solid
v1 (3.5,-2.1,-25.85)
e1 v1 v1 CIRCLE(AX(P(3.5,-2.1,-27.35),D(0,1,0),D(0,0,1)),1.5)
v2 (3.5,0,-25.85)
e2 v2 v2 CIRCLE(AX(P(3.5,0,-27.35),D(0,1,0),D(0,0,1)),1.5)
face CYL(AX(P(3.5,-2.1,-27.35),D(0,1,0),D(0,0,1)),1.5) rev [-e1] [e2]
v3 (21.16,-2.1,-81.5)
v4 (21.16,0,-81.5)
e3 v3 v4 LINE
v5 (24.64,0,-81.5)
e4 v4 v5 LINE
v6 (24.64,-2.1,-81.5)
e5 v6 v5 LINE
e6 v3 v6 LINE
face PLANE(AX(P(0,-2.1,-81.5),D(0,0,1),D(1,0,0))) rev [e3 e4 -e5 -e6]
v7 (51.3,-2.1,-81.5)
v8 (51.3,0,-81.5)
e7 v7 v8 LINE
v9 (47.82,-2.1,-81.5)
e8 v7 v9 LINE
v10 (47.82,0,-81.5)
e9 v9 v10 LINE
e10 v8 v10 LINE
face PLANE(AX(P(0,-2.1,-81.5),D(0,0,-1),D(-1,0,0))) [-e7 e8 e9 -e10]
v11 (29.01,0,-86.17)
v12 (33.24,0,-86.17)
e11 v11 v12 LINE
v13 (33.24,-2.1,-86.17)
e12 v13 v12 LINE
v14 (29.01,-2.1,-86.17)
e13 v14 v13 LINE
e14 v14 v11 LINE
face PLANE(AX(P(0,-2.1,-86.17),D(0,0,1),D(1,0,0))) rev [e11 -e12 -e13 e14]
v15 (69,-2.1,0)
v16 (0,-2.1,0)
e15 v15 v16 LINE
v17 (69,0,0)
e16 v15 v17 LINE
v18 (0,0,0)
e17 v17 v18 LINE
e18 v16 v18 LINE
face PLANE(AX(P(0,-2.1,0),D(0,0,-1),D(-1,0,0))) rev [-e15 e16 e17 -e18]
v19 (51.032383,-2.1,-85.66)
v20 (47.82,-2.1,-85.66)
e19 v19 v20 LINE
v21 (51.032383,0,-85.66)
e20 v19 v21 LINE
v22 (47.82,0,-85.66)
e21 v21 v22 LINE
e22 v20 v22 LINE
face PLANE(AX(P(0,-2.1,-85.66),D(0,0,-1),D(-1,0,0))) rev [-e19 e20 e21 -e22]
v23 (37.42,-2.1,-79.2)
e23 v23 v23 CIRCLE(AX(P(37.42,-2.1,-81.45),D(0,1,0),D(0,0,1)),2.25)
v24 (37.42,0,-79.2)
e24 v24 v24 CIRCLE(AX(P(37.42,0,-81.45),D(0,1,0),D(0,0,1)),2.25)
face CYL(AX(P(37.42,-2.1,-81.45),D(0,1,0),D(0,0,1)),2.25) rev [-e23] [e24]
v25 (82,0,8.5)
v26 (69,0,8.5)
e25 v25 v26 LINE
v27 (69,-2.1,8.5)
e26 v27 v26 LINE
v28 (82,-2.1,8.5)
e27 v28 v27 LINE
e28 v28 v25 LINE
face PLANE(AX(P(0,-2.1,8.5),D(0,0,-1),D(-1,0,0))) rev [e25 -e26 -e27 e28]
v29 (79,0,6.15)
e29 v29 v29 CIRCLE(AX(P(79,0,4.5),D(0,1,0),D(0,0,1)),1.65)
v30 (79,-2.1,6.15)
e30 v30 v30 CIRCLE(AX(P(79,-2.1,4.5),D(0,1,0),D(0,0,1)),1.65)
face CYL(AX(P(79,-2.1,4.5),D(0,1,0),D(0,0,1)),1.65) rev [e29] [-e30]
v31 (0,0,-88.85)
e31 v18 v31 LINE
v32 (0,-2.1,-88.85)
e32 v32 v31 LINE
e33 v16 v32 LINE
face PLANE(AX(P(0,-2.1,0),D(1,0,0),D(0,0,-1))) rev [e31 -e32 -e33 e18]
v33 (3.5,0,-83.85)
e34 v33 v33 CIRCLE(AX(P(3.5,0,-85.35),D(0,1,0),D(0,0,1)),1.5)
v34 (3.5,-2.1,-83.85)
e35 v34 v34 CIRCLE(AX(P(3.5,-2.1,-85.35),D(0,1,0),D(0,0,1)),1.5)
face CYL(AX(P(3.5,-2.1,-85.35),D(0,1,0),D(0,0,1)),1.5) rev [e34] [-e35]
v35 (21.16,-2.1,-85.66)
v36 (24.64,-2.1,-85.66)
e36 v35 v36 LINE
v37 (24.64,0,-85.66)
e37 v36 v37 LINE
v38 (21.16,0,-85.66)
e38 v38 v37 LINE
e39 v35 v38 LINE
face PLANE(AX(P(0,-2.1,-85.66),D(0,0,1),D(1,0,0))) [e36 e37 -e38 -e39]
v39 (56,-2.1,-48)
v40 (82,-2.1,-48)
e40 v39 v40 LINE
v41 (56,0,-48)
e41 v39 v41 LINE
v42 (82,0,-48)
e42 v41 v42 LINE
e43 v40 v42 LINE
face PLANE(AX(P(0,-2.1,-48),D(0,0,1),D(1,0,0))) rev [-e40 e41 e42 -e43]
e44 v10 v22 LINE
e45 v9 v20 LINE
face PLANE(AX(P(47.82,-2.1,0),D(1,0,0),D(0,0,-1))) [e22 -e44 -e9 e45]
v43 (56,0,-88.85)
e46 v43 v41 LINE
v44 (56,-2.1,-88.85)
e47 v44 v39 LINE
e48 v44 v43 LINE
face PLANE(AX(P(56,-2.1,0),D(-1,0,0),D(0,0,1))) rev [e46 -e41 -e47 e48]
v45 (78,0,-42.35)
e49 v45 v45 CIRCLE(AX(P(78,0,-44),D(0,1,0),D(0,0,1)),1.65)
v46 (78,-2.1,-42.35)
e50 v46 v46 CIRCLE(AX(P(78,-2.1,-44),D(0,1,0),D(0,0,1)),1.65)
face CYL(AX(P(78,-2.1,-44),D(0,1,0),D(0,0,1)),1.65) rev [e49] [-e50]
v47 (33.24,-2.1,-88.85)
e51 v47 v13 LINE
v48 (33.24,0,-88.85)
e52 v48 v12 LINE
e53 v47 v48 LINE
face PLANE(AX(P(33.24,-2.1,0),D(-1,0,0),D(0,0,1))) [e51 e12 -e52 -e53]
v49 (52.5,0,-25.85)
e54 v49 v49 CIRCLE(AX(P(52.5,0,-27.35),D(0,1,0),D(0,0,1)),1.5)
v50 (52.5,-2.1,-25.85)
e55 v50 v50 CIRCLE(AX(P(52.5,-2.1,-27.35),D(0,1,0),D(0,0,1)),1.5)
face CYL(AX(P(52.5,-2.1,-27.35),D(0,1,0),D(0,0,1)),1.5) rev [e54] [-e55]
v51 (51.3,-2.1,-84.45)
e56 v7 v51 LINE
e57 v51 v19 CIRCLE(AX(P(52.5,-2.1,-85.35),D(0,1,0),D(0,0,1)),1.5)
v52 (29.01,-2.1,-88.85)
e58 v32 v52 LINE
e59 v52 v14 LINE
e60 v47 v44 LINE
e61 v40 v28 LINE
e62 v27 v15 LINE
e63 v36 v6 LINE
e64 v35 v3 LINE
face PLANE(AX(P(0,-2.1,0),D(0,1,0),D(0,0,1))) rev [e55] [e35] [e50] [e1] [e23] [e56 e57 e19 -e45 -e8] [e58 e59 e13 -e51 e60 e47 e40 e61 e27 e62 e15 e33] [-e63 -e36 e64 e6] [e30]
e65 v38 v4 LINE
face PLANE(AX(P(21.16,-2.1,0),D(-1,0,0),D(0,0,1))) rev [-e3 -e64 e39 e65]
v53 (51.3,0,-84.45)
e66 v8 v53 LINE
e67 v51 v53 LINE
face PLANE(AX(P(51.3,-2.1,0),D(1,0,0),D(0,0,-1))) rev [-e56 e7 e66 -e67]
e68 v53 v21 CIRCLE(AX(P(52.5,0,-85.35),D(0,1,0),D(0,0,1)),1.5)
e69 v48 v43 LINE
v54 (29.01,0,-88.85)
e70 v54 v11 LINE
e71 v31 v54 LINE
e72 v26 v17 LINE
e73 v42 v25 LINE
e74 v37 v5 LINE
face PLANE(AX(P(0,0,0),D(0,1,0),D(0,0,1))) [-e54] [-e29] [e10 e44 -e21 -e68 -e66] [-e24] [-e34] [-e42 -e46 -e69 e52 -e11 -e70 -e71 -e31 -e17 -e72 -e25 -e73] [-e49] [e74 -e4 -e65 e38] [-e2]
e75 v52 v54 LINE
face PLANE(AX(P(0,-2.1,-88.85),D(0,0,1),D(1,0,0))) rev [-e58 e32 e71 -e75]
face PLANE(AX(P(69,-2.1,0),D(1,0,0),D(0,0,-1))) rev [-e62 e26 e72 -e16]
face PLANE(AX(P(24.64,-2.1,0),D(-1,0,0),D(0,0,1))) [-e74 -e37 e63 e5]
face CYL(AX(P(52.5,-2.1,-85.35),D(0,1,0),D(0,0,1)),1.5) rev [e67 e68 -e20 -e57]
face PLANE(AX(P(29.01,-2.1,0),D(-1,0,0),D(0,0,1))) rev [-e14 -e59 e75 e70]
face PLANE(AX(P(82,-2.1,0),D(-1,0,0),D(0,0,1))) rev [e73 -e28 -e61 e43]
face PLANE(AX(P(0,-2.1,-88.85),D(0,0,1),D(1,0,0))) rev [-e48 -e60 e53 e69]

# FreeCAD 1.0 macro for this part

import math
import FreeCAD as App
import Part
import Sketcher

V = App.Vector
Q = App.Units.Quantity


def add_polygon(sketch, points):
    """Adds a closed chain of lines whose ends are joined by coincident constraints."""
    first, n = sketch.GeometryCount, len(points)
    for a, b in zip(points, points[1:] + points[:1]):
        sketch.addGeometry(Part.LineSegment(App.Vector(*a, 0), App.Vector(*b, 0)), False)
    for i in range(n):
        sketch.addConstraint(Sketcher.Constraint("Coincident", first + i, 2, first + (i + 1) % n, 1))

doc = App.newDocument("Part")
body = doc.addObject("PartDesign::Body", "Body")

# Sketch on XZ plane
sketch1 = body.newObject("Sketcher::SketchObject", "Sketch")
sketch1.AttachmentSupport = (doc.getObject("XZ_Plane"), [""])
sketch1.MapMode = "FlatFace"
add_polygon(sketch1, [(0, -88.8), (0, 0), (69, 0), (69, 8.5), (82, 8.5), (82, -48), (56, -48), (56, -88.8), (33.2, -88.8), (33.2, -86.2), (29, -86.2), (29, -88.8)])  # lines 0-11
sketch1.addGeometry(Part.Circle(V(3.5, -27.4, 0), V(0, 0, 1), 1.5), False)  # 12
sketch1.addGeometry(Part.Circle(V(79, 4.5, 0), V(0, 0, 1), 1.6), False)  # 13
sketch1.addGeometry(Part.Circle(V(52.5, -27.4, 0), V(0, 0, 1), 1.5), False)  # 14
sketch1.addGeometry(Part.Circle(V(3.5, -85.3, 0), V(0, 0, 1), 1.5), False)  # 15
add_polygon(sketch1, [(24.6, -81.5), (21.2, -81.5), (21.2, -85.7), (24.6, -85.7)])  # lines 16-19
sketch1.addGeometry(Part.Circle(V(37.4, -81.5, 0), V(0, 0, 1), 2.2), False)  # 20
sketch1.addGeometry(Part.Circle(V(78, -44, 0), V(0, 0, 1), 1.6), False)  # 21
sketch1.addGeometry(Part.ArcOfCircle(Part.Circle(V(52.5, -85.3, 0), V(0, 0, 1), 1.5), math.radians(0), math.radians(143)), False)  # 22
sketch1.addGeometry(Part.LineSegment(V(51.3, -84.5, 0), V(51.3, -81.5, 0)), False)  # 23
sketch1.addGeometry(Part.LineSegment(V(51.3, -81.5, 0), V(47.8, -81.5, 0)), False)  # 24
sketch1.addGeometry(Part.LineSegment(V(47.8, -81.5, 0), V(47.8, -85.7, 0)), False)  # 25
sketch1.addGeometry(Part.LineSegment(V(47.8, -85.7, 0), V(51, -85.7, 0)), False)  # 26
sketch1.addGeometry(Part.ArcOfCircle(Part.Circle(V(52.5, -85.3, 0), V(0, 0, 1), 1.5), math.radians(-168), math.radians(0)), False)  # 27
sketch1.addConstraint(Sketcher.Constraint("Coincident", 22, 2, 23, 1))
sketch1.addConstraint(Sketcher.Constraint("Coincident", 23, 2, 24, 1))
sketch1.addConstraint(Sketcher.Constraint("Coincident", 24, 2, 25, 1))
sketch1.addConstraint(Sketcher.Constraint("Coincident", 25, 2, 26, 1))
sketch1.addConstraint(Sketcher.Constraint("Coincident", 26, 2, 27, 1))
sketch1.addConstraint(Sketcher.Constraint("Tangent", 27, 2, 22, 1))
sketch1.addConstraint(Sketcher.Constraint("Vertical", 0))
sketch1.addConstraint(Sketcher.Constraint("Horizontal", 1))
sketch1.addConstraint(Sketcher.Constraint("Vertical", 2))
sketch1.addConstraint(Sketcher.Constraint("Horizontal", 3))
sketch1.addConstraint(Sketcher.Constraint("Vertical", 4))
sketch1.addConstraint(Sketcher.Constraint("Horizontal", 5))
sketch1.addConstraint(Sketcher.Constraint("Vertical", 6))
sketch1.addConstraint(Sketcher.Constraint("Horizontal", 7))
sketch1.addConstraint(Sketcher.Constraint("Vertical", 8))
sketch1.addConstraint(Sketcher.Constraint("Horizontal", 9))
sketch1.addConstraint(Sketcher.Constraint("Vertical", 10))
sketch1.addConstraint(Sketcher.Constraint("Horizontal", 11))
sketch1.addConstraint(Sketcher.Constraint("Horizontal", 16))
sketch1.addConstraint(Sketcher.Constraint("Vertical", 17))
sketch1.addConstraint(Sketcher.Constraint("Horizontal", 18))
sketch1.addConstraint(Sketcher.Constraint("Vertical", 19))
sketch1.addConstraint(Sketcher.Constraint("Vertical", 23))
sketch1.addConstraint(Sketcher.Constraint("Horizontal", 24))
sketch1.addConstraint(Sketcher.Constraint("Vertical", 25))
sketch1.addConstraint(Sketcher.Constraint("Horizontal", 26))
sketch1.addConstraint(Sketcher.Constraint("Coincident", 0, 2, -1, 1))
sketch1.addConstraint(Sketcher.Constraint("Equal", 12, 14))
sketch1.addConstraint(Sketcher.Constraint("Equal", 14, 15))
sketch1.addConstraint(Sketcher.Constraint("Equal", 13, 21))
sketch1.addConstraint(Sketcher.Constraint("Equal", 15, 22))
sketch1.addConstraint(Sketcher.Constraint("Equal", 22, 27))
sketch1.addConstraint(Sketcher.Constraint("Horizontal", 12, 3, 14, 3))
sketch1.addConstraint(Sketcher.Constraint("Horizontal", 15, 3, 22, 3))
sketch1.addConstraint(Sketcher.Constraint("Horizontal", 7, 2, 10, 2))
sketch1.addConstraint(Sketcher.Constraint("Horizontal", 19, 2, 23, 2))
sketch1.addConstraint(Sketcher.Constraint("Horizontal", 18, 2, 25, 2))
sketch1.addConstraint(Sketcher.Constraint("Horizontal", 22, 3, 27, 2))
sketch1.addConstraint(Sketcher.Constraint("Vertical", 12, 3, 15, 3))
sketch1.addConstraint(Sketcher.Constraint("Vertical", 14, 3, 22, 3))
sketch1.addConstraint(Sketcher.Constraint("Equal", 18, 24))
sketch1.addConstraint(Sketcher.Constraint("Diameter", 12, Q("3 mm")))
sketch1.addConstraint(Sketcher.Constraint("Diameter", 13, Q("3.3 mm")))
sketch1.addConstraint(Sketcher.Constraint("Diameter", 20, Q("4.5 mm")))
sketch1.addConstraint(Sketcher.Constraint("DistanceX", 1, 1, 1, 2, Q("69 mm")))
sketch1.addConstraint(Sketcher.Constraint("DistanceX", 3, 1, 3, 2, Q("13 mm")))
sketch1.addConstraint(Sketcher.Constraint("DistanceX", 5, 2, 5, 1, Q("26 mm")))
sketch1.addConstraint(Sketcher.Constraint("DistanceY", 2, 1, 2, 2, Q("8.5 mm")))
sketch1.addConstraint(Sketcher.Constraint("DistanceY", 4, 2, 4, 1, Q("56.5 mm")))
sketch1.addConstraint(Sketcher.Constraint("DistanceX", -1, 1, 13, 3, Q("79 mm")))
sketch1.addConstraint(Sketcher.Constraint("DistanceX", -1, 1, 21, 3, Q("78 mm")))
sketch1.addConstraint(Sketcher.Constraint("DistanceY", 21, 3, -1, 1, Q("44 mm")))
sketch1.addConstraint(Sketcher.Constraint("DistanceX", -1, 1, 27, 2, Q("54 mm")))
sketch1.addConstraint(Sketcher.Constraint("DistanceX", 12, 3, 14, 3, Q("49 mm")))
sketch1.addConstraint(Sketcher.Constraint("DistanceY", 15, 3, 12, 3, Q("58 mm")))
sketch1.addConstraint(Sketcher.Constraint("DistanceY", 13, 3, 2, 2, Q("4 mm")))
sketch1.addConstraint(Sketcher.Constraint("DistanceY", 22, 2, 20, 3, Q("3 mm")))
sketch1.addConstraint(Sketcher.Constraint("DistanceX", 7, 2, 7, 1, Q("22.76 mm")))
sketch1.addConstraint(Sketcher.Constraint("DistanceX", 9, 2, 9, 1, Q("4.23 mm")))
sketch1.addConstraint(Sketcher.Constraint("DistanceX", 16, 2, 16, 1, Q("3.48 mm")))
sketch1.addConstraint(Sketcher.Constraint("DistanceY", 0, 1, 0, 2, Q("88.85 mm")))
sketch1.addConstraint(Sketcher.Constraint("DistanceY", 8, 1, 8, 2, Q("2.68 mm")))
sketch1.addConstraint(Sketcher.Constraint("DistanceY", 17, 2, 17, 1, Q("4.16 mm")))
sketch1.addConstraint(Sketcher.Constraint("DistanceY", 23, 1, 23, 2, Q("2.95 mm")))
sketch1.addConstraint(Sketcher.Constraint("DistanceY", 16, 2, -1, 1, Q("81.5 mm")))
sketch1.addConstraint(Sketcher.Constraint("DistanceX", -1, 1, 22, 2, Q("51.3 mm")))
sketch1.addConstraint(Sketcher.Constraint("DistanceX", 18, 2, 8, 2, Q("8.6 mm")))
sketch1.addConstraint(Sketcher.Constraint("DistanceX", 20, 3, 24, 2, Q("10.4 mm")))
pad1 = body.newObject("PartDesign::Pad", "Pad")
pad1.Profile = sketch1
pad1.Length = 2.1

doc.recompute()
